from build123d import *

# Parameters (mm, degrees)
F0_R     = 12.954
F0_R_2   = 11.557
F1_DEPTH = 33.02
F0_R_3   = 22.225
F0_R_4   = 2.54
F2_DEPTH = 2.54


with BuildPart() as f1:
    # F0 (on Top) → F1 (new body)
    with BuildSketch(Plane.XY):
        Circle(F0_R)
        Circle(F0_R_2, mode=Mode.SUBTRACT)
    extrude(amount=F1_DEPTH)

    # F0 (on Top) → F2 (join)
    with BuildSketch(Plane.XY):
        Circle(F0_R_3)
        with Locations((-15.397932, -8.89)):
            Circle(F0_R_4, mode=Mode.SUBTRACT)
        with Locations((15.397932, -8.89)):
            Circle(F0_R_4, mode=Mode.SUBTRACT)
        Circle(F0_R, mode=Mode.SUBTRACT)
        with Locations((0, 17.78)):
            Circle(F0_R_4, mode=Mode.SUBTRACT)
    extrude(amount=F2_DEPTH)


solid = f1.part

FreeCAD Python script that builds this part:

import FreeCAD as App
import Part
import Sketcher
Q = App.Units.Quantity

doc = App.newDocument("Part")
body = doc.addObject("PartDesign::Body", "Body")

sketch1 = doc.addObject("Sketcher::SketchObject", "Sketch")
body.addObject(sketch1)
sketch1.AttachmentSupport = (doc.XY_Plane, [""])
sketch1.MapMode = "FlatFace"
sketch1.addGeometry([
    Part.Circle(App.Vector(0, 0, 0), App.Vector(0, 0, 1), 13),
    Part.Circle(App.Vector(0, 0, 0), App.Vector(0, 0, 1), 12),
], False)
sketch1.addConstraint([
    Sketcher.Constraint("Coincident", 0, 3, -1, 1),
    Sketcher.Constraint("Coincident", 1, 3, -1, 1),
    Sketcher.Constraint("Diameter", 0, Q("1.02 in")),
    Sketcher.Constraint("Diameter", 1, Q("0.91 in")),
])
pad1 = doc.addObject("PartDesign::Pad", "Pad")
body.addObject(pad1)
pad1.Profile = sketch1
pad1.Length = Q("1.3 in")

sketch2 = doc.addObject("Sketcher::SketchObject", "Sketch001")
body.addObject(sketch2)
sketch2.AttachmentSupport = (doc.XY_Plane, [""])
sketch2.MapMode = "FlatFace"
sketch2.addGeometry([
    Part.Circle(App.Vector(0, 0, 0), App.Vector(0, 0, 1), 22.2),
    Part.Circle(App.Vector(-15.4, -8.9, 0), App.Vector(0, 0, 1), 2.5),
    Part.Circle(App.Vector(0, 0, 0), App.Vector(0, 0, 1), 13),
    Part.Circle(App.Vector(15.4, -8.9, 0), App.Vector(0, 0, 1), 2.5),
    Part.Circle(App.Vector(0, 17.8, 0), App.Vector(0, 0, 1), 2.5),
], False)
sketch2.addConstraint([
    Sketcher.Constraint("Coincident", 0, 3, -1, 1),
    Sketcher.Constraint("Coincident", 2, 3, -1, 1),
    Sketcher.Constraint("Equal", 1, 3),
    Sketcher.Constraint("Equal", 3, 4),
    Sketcher.Constraint("Symmetric", 1, 3, 3, 3, -2),
    Sketcher.Constraint("PointOnObject", 4, 3, -2),
    Sketcher.Constraint("Diameter", 1, Q("0.2 in")),
    Sketcher.Constraint("Diameter", 0, Q("1.75 in")),
    Sketcher.Constraint("Diameter", 2, Q("1.02 in")),
    Sketcher.Constraint("DistanceY", -1, 1, 4, 3, Q("0.7 in")),
    Sketcher.Constraint("DistanceY", 1, 3, -1, 1, Q("0.35 in")),
    Sketcher.Constraint("DistanceX", 1, 3, -1, 1, 15.397932),
])
pad2 = doc.addObject("PartDesign::Pad", "Pad001")
body.addObject(pad2)
pad2.Profile = sketch2
pad2.Length = Q("0.1 in")

doc.recompute()
